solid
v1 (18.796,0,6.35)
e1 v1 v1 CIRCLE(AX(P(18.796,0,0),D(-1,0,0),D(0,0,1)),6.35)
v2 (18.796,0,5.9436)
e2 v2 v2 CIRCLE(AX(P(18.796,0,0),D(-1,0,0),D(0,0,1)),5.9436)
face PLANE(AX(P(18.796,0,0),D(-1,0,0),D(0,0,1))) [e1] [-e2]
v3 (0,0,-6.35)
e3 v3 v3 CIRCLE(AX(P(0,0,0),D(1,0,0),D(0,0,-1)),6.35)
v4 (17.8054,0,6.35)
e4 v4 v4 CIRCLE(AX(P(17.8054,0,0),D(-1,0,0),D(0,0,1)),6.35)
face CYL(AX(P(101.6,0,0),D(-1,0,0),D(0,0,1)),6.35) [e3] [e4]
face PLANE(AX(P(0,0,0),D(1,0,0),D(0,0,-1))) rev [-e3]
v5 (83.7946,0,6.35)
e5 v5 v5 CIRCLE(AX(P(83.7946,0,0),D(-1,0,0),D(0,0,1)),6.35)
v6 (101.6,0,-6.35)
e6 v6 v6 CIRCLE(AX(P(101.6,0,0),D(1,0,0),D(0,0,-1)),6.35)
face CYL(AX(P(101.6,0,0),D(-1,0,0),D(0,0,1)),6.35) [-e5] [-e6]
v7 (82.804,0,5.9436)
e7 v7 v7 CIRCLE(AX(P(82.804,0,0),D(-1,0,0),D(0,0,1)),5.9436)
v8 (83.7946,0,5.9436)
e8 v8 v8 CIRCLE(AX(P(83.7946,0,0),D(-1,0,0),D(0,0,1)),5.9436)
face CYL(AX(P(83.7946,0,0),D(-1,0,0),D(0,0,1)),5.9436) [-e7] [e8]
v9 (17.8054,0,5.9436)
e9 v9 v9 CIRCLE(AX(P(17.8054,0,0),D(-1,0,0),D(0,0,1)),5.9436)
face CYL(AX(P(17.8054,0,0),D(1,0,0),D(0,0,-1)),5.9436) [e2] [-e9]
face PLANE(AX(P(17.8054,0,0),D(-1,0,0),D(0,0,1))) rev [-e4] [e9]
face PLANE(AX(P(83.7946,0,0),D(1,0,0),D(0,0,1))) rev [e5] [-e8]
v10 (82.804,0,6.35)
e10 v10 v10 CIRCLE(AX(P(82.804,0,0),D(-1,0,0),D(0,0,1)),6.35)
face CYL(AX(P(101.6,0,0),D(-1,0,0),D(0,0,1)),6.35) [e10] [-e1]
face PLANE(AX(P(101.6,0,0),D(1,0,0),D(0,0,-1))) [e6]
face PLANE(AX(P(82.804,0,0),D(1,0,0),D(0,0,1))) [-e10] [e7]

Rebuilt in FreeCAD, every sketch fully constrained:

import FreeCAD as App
import Part
import Sketcher

V = App.Vector
Q = App.Units.Quantity

doc = App.newDocument("Part")
params = doc.addObject("Spreadsheet::Sheet", "Params")
for row, (alias, value) in enumerate([
    ("sketch1_diameter", "0.5 in"),
    ("pad1_length", "4 in"),
    ("sketch2_diameter", "0.5 in"),
    ("sketch2_diameter2", "0.468 in"),
    ("pocket1_length", "0.039 in"),
], start=1):
    params.set(f"A{row}", alias)
    params.set(f"B{row}", "=" + value)
    params.setAlias(f"B{row}", alias)

body = doc.addObject("PartDesign::Body", "Body")

sketch1 = body.newObject("Sketcher::SketchObject", "Sketch")
sketch1.AttachmentSupport = (doc.getObject("YZ_Plane"), [""])
sketch1.MapMode = "FlatFace"
sketch1.addGeometry(Part.Circle(V(0, 0, 0), V(0, 0, 1), 6), False)
sketch1.addConstraint([
    Sketcher.Constraint("Coincident", 0, 3, -1, 1),
    Sketcher.Constraint("Diameter", 0, Q("0.5 in")),
])
sketch1.setExpression("Constraints[1]", "Params.sketch1_diameter")
pad1 = body.newObject("PartDesign::Pad", "Pad")
pad1.Profile = sketch1
pad1.setExpression("Length", "Params.pad1_length")

sketch2 = body.newObject("Sketcher::SketchObject", "Sketch001")
sketch2.AttachmentSupport = (doc.getObject("YZ_Plane"), [""])
sketch2.MapMode = "FlatFace"
sketch2.AttachmentOffset = App.Placement(V(0, 0, 0.701 * 25.4), App.Rotation())
sketch2.addGeometry([
    Part.Circle(V(0, 0, 0), V(0, 0, 1), 6),
    Part.Circle(V(0, 0, 0), V(0, 0, 1), 6),
], False)
sketch2.addConstraint([
    Sketcher.Constraint("Coincident", 0, 3, -1, 1),
    Sketcher.Constraint("Coincident", 1, 3, -1, 1),
    Sketcher.Constraint("Diameter", 0, Q("0.5 in")),
    Sketcher.Constraint("Diameter", 1, Q("0.468 in")),
])
sketch2.setExpression("Constraints[2]", "Params.sketch2_diameter")
sketch2.setExpression("Constraints[3]", "Params.sketch2_diameter2")
pocket1 = body.newObject("PartDesign::Pocket", "Pocket")
pocket1.Profile = sketch2
pocket1.setExpression("Length", "Params.pocket1_length")
pocket1.Reversed = True
doc.recompute()

datumplane = body.newObject("PartDesign::Plane", "DatumPlane")
datumplane.AttachmentSupport = (doc.getObject("YZ_Plane"), [""])
datumplane.MapMode = "FlatFace"
datumplane.AttachmentOffset = App.Placement(V(0, 0, 2 * 25.4), App.Rotation())
mirrored = body.newObject("PartDesign::Mirrored", "Mirrored")
mirrored.Originals = [pocket1]
mirrored.MirrorPlane = (datumplane, [""])
body.Tip = mirrored

doc.recompute()
